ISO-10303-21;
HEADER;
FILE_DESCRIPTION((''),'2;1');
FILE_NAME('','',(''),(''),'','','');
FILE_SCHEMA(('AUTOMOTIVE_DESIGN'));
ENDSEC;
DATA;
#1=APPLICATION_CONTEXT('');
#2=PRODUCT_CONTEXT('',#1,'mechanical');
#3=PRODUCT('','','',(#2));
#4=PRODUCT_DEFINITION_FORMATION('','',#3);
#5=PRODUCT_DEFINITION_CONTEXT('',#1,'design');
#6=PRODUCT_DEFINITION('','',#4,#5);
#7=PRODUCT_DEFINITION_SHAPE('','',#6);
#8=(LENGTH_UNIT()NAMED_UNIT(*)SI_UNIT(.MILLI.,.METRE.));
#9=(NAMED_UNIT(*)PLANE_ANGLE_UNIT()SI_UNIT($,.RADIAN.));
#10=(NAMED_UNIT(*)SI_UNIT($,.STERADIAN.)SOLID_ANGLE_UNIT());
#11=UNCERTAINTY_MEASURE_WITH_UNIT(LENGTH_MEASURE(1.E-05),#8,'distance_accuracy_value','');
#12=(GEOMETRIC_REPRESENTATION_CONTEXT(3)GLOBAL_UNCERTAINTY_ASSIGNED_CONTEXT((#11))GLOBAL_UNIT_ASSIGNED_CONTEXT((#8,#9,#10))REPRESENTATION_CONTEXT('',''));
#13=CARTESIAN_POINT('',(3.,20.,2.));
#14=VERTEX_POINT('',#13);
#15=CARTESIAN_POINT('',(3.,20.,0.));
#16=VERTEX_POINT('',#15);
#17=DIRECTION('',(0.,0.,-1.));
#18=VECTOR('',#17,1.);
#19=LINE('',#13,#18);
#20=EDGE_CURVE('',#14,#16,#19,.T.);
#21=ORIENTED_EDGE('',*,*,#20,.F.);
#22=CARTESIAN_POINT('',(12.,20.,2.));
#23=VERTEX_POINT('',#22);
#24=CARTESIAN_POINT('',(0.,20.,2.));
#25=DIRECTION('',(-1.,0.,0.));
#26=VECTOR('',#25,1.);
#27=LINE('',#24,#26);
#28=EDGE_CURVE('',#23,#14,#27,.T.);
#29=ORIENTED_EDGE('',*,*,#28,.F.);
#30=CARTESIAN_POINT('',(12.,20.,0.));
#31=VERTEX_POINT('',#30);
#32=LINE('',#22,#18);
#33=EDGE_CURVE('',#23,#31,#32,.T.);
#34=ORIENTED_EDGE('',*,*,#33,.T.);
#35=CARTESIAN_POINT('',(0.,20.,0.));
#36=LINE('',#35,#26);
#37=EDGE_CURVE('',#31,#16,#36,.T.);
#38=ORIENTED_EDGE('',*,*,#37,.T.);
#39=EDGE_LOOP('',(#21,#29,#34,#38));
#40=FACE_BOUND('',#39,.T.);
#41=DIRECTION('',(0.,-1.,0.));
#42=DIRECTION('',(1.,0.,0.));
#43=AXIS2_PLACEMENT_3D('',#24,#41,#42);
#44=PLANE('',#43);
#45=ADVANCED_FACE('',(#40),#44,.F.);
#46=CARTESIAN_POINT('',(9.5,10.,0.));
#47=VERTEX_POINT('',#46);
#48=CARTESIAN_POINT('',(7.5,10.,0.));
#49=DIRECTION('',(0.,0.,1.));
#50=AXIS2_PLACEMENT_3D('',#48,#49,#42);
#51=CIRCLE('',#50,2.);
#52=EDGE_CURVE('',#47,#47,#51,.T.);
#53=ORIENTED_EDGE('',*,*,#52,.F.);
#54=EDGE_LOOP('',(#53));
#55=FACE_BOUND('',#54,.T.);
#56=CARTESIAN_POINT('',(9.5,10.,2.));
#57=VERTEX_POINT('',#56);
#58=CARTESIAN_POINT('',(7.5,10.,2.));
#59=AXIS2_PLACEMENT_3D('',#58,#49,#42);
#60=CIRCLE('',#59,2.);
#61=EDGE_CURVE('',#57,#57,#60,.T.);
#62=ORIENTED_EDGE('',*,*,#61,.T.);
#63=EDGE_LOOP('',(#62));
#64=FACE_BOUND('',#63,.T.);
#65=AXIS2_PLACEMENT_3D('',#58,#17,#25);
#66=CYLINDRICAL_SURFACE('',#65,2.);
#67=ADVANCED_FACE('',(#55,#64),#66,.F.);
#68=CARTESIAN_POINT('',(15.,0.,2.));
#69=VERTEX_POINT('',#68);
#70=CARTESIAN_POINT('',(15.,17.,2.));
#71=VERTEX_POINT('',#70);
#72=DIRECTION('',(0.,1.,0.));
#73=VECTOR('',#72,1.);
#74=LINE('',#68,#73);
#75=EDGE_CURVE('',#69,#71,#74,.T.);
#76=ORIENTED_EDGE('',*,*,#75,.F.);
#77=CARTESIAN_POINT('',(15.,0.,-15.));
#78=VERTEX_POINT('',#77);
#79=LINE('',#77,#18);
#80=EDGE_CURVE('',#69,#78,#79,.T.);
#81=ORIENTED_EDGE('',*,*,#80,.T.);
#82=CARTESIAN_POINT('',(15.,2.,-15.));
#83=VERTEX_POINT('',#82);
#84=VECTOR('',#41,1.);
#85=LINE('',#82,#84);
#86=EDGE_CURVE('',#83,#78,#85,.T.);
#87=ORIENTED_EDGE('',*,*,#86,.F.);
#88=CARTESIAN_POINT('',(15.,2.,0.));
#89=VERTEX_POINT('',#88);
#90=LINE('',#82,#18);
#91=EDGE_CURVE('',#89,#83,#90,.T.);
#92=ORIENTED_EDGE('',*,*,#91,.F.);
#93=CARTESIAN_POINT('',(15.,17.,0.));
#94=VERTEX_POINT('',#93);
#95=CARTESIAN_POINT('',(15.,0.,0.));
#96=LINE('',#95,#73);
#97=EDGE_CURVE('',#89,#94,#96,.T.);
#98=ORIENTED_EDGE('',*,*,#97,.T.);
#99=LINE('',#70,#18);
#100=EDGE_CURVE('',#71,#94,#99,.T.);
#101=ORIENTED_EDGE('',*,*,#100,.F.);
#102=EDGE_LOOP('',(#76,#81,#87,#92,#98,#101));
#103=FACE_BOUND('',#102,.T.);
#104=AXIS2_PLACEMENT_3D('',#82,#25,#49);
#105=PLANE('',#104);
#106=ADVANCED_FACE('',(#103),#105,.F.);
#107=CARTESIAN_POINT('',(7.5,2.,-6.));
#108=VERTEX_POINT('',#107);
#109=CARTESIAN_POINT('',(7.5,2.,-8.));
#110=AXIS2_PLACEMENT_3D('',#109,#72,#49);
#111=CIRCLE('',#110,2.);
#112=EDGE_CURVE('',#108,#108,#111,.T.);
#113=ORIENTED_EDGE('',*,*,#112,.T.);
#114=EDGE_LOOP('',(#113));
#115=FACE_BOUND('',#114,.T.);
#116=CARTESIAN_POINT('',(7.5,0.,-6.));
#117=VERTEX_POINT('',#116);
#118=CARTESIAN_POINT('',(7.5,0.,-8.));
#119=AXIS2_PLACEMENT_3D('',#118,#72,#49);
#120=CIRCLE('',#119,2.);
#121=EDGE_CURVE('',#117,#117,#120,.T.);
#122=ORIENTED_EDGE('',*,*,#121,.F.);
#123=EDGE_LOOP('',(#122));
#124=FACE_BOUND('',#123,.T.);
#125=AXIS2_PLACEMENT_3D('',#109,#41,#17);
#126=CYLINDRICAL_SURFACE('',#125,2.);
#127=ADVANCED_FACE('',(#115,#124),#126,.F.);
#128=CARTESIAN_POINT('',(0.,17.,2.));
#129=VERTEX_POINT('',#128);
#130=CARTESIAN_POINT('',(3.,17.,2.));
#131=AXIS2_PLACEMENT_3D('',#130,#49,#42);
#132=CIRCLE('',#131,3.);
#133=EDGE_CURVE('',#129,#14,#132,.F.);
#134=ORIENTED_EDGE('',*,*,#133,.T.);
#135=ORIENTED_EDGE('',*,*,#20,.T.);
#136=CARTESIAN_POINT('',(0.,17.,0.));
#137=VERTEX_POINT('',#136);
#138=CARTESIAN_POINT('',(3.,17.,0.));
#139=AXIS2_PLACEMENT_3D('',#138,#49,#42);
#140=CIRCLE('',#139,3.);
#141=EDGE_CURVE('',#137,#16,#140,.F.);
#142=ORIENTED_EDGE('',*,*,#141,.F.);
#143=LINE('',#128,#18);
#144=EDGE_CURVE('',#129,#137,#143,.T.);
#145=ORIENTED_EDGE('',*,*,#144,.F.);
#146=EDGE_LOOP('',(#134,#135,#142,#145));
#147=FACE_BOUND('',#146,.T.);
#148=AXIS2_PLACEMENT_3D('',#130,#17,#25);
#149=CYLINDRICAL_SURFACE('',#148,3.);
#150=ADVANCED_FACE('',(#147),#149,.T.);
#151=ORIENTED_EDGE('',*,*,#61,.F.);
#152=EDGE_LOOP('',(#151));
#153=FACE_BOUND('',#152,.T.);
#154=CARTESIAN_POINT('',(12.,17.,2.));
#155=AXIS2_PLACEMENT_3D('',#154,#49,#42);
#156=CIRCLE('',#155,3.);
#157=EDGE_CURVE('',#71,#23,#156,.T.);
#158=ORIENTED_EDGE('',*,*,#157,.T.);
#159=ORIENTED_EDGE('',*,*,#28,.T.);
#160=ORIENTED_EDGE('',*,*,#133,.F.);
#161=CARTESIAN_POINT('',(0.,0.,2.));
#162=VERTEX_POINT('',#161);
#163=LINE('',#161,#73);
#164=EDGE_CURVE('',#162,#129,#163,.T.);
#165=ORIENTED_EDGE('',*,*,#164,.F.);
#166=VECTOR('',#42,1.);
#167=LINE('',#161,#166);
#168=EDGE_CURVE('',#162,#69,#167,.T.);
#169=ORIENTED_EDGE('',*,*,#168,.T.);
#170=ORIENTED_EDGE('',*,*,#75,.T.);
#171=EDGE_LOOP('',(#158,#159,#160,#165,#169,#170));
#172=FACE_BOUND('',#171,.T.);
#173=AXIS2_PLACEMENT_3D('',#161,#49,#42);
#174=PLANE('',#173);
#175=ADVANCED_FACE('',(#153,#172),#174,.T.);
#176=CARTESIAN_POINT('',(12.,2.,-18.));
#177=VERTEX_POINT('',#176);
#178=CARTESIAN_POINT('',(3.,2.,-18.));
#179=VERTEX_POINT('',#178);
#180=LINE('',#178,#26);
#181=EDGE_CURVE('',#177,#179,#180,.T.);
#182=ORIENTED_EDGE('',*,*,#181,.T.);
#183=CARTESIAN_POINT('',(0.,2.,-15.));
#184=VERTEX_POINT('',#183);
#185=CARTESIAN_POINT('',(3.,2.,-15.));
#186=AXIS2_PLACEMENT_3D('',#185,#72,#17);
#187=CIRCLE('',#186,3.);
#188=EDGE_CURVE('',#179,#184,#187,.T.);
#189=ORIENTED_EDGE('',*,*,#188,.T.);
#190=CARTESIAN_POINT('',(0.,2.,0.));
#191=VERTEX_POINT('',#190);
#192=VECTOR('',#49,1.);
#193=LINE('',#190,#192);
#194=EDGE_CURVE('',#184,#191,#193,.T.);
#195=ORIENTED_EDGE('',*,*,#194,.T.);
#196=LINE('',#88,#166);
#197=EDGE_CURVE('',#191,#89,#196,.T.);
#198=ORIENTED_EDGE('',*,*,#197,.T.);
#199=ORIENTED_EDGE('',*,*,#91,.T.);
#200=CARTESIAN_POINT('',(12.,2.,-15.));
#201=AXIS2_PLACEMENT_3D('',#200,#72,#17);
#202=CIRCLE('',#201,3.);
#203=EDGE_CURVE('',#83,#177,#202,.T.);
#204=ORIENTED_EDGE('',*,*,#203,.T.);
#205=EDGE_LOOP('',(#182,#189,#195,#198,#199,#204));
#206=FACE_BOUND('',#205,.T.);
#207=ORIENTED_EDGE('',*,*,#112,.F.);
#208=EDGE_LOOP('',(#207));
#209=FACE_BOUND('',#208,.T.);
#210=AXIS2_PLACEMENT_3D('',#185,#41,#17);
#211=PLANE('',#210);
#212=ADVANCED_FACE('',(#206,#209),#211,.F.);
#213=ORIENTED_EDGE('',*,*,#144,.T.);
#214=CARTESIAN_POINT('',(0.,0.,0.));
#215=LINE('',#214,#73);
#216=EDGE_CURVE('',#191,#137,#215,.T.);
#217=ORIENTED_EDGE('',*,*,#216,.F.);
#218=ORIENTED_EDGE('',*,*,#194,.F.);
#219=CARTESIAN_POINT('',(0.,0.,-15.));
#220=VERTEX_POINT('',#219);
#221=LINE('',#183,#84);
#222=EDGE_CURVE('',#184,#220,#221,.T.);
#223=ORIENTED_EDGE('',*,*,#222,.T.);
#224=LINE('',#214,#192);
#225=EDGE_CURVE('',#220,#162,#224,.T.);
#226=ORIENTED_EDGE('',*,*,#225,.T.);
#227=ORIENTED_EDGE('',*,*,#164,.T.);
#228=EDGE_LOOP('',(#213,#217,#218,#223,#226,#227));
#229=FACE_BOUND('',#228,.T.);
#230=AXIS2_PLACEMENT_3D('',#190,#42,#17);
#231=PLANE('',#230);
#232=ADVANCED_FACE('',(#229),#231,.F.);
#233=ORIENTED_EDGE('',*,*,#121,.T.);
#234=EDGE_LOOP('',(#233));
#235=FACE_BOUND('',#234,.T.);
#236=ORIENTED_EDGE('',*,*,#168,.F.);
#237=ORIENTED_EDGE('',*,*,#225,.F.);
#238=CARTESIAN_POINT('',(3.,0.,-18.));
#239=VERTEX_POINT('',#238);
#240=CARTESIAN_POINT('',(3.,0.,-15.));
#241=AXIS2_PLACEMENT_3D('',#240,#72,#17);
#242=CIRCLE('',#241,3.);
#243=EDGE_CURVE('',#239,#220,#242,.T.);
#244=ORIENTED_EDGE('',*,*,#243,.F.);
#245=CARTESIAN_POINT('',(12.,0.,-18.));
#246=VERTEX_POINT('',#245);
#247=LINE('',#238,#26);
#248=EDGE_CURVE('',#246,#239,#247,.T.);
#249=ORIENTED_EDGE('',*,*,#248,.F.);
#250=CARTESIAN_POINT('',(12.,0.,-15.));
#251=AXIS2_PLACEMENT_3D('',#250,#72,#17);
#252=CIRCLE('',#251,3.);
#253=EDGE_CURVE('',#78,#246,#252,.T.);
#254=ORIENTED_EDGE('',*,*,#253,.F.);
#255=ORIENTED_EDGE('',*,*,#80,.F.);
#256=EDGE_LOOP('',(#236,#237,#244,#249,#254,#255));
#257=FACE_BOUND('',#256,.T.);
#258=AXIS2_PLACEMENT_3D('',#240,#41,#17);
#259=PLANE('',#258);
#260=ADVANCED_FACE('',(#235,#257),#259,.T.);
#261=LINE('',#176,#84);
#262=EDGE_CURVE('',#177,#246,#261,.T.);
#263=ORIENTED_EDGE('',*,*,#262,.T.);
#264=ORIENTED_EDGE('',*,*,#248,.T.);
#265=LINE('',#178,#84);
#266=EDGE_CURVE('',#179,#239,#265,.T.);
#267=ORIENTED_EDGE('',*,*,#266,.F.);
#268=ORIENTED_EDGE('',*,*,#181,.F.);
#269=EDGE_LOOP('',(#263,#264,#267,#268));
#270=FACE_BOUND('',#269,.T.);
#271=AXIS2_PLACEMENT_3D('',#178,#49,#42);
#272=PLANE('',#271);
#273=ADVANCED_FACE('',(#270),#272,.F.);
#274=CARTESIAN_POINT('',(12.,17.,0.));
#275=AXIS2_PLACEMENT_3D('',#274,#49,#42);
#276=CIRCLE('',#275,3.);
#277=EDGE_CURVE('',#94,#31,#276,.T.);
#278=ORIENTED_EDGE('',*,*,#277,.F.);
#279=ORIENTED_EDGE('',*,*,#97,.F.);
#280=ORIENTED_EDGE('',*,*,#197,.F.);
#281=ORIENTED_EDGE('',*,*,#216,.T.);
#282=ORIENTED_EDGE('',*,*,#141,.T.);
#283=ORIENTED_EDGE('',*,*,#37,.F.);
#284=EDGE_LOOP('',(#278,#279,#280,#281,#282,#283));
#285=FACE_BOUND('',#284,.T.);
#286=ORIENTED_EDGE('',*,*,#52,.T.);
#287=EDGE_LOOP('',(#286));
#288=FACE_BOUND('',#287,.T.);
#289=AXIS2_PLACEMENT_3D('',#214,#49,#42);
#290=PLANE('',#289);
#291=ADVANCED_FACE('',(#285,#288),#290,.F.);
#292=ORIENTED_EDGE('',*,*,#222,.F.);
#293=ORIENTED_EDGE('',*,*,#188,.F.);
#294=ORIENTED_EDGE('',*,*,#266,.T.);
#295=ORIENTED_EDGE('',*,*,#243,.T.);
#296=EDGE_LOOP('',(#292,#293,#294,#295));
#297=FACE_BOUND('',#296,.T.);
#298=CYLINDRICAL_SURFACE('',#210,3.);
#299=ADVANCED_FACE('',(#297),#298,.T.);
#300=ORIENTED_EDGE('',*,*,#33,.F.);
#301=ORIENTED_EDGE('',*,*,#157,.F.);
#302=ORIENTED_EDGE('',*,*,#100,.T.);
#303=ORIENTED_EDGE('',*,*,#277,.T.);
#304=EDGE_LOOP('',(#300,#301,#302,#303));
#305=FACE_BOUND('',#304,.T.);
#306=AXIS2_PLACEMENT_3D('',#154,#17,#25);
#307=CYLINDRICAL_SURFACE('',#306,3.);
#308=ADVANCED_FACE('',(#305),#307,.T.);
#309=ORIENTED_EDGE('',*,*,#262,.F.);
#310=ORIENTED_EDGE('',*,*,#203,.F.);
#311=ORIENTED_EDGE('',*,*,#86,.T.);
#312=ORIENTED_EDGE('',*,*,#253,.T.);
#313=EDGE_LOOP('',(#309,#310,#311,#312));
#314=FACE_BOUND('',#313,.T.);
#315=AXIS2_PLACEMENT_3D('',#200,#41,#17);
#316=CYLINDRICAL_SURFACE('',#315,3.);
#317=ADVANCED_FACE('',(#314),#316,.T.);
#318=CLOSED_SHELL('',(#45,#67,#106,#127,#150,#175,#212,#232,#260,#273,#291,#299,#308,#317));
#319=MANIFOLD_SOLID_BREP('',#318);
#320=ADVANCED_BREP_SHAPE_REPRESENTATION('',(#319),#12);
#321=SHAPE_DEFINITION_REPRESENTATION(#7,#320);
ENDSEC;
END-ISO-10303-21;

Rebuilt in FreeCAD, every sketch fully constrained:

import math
import FreeCAD as App
import Part
import Sketcher

V = App.Vector
Q = App.Units.Quantity

doc = App.newDocument("Part")
body = doc.addObject("PartDesign::Body", "Body")

# Sketch on XZ plane
sketch1 = body.newObject("Sketcher::SketchObject", "Sketch")
sketch1.AttachmentSupport = (doc.getObject("XZ_Plane"), [""])
sketch1.MapMode = "FlatFace"
sketch1.addGeometry([
    Part.LineSegment(V(0, -15, 0), V(0, 0, 0)),  # 0
    Part.LineSegment(V(0, 0, 0), V(15, 0, 0)),  # 1
    Part.LineSegment(V(15, 0, 0), V(15, -15, 0)),  # 2
    Part.ArcOfCircle(Part.Circle(V(12, -15, 0), V(0, 0, 1), 3), math.radians(-90), math.radians(0)),  # 3
    Part.LineSegment(V(12, -18, 0), V(3, -18, 0)),  # 4
    Part.ArcOfCircle(Part.Circle(V(3, -15, 0), V(0, 0, 1), 3), math.radians(180), math.radians(270)),  # 5
    Part.Circle(V(7.5, -8, 0), V(0, 0, 1), 2),  # 6
], False)
sketch1.addConstraint([
    Sketcher.Constraint("Coincident", 0, 2, 1, 1),
    Sketcher.Constraint("Coincident", 1, 2, 2, 1),
    Sketcher.Constraint("Tangent", 2, 2, 3, 2),
    Sketcher.Constraint("Tangent", 3, 1, 4, 1),
    Sketcher.Constraint("Tangent", 4, 2, 5, 2),
    Sketcher.Constraint("Tangent", 5, 1, 0, 1),
    Sketcher.Constraint("Vertical", 0),
    Sketcher.Constraint("Horizontal", 1),
    Sketcher.Constraint("Vertical", 2),
    Sketcher.Constraint("Horizontal", 4),
    Sketcher.Constraint("Coincident", 0, 2, -1, 1),
    Sketcher.Constraint("Equal", 3, 5),
    Sketcher.Constraint("Equal", 1, 0),
    Sketcher.Constraint("Diameter", 6, Q("4 mm")),
    Sketcher.Constraint("Radius", 3, Q("3 mm")),
    Sketcher.Constraint("DistanceX", 1, 1, 1, 2, Q("15 mm")),
    Sketcher.Constraint("DistanceY", 6, 3, -1, 1, Q("8 mm")),
    Sketcher.Constraint("DistanceX", -1, 1, 6, 3, Q("7.5 mm")),
])
pad1 = body.newObject("PartDesign::Pad", "Pad")
pad1.Profile = sketch1
pad1.Length = 2
pad1.Reversed = True

# Sketch on XY plane
sketch2 = body.newObject("Sketcher::SketchObject", "Sketch001")
sketch2.AttachmentSupport = (doc.getObject("XY_Plane"), [""])
sketch2.MapMode = "FlatFace"
sketch2.addGeometry([
    Part.LineSegment(V(0, 17, 0), V(0, 0, 0)),  # 0
    Part.LineSegment(V(0, 0, 0), V(15, 0, 0)),  # 1
    Part.LineSegment(V(15, 0, 0), V(15, 17, 0)),  # 2
    Part.ArcOfCircle(Part.Circle(V(12, 17, 0), V(0, 0, 1), 3), math.radians(0), math.radians(90)),  # 3
    Part.LineSegment(V(12, 20, 0), V(3, 20, 0)),  # 4
    Part.ArcOfCircle(Part.Circle(V(3, 17, 0), V(0, 0, 1), 3), math.radians(90), math.radians(180)),  # 5
    Part.Circle(V(7.5, 10, 0), V(0, 0, 1), 2),  # 6
], False)
sketch2.addConstraint([
    Sketcher.Constraint("Coincident", 0, 2, 1, 1),
    Sketcher.Constraint("Coincident", 1, 2, 2, 1),
    Sketcher.Constraint("Tangent", 2, 2, 3, 1),
    Sketcher.Constraint("Tangent", 3, 2, 4, 1),
    Sketcher.Constraint("Tangent", 4, 2, 5, 1),
    Sketcher.Constraint("Tangent", 5, 2, 0, 1),
    Sketcher.Constraint("Vertical", 0),
    Sketcher.Constraint("Horizontal", 1),
    Sketcher.Constraint("Vertical", 2),
    Sketcher.Constraint("Horizontal", 4),
    Sketcher.Constraint("Coincident", 0, 2, -1, 1),
    Sketcher.Constraint("Equal", 3, 5),
    Sketcher.Constraint("Diameter", 6, Q("4 mm")),
    Sketcher.Constraint("Radius", 3, Q("3 mm")),
    Sketcher.Constraint("DistanceX", 1, 1, 1, 2, Q("15 mm")),
    Sketcher.Constraint("DistanceY", 0, 2, 0, 1, Q("17 mm")),
    Sketcher.Constraint("DistanceY", -1, 1, 6, 3, Q("10 mm")),
    Sketcher.Constraint("DistanceX", -1, 1, 6, 3, Q("7.5 mm")),
])
pad2 = body.newObject("PartDesign::Pad", "Pad001")
pad2.Profile = sketch2
pad2.Length = 2

doc.recompute()
